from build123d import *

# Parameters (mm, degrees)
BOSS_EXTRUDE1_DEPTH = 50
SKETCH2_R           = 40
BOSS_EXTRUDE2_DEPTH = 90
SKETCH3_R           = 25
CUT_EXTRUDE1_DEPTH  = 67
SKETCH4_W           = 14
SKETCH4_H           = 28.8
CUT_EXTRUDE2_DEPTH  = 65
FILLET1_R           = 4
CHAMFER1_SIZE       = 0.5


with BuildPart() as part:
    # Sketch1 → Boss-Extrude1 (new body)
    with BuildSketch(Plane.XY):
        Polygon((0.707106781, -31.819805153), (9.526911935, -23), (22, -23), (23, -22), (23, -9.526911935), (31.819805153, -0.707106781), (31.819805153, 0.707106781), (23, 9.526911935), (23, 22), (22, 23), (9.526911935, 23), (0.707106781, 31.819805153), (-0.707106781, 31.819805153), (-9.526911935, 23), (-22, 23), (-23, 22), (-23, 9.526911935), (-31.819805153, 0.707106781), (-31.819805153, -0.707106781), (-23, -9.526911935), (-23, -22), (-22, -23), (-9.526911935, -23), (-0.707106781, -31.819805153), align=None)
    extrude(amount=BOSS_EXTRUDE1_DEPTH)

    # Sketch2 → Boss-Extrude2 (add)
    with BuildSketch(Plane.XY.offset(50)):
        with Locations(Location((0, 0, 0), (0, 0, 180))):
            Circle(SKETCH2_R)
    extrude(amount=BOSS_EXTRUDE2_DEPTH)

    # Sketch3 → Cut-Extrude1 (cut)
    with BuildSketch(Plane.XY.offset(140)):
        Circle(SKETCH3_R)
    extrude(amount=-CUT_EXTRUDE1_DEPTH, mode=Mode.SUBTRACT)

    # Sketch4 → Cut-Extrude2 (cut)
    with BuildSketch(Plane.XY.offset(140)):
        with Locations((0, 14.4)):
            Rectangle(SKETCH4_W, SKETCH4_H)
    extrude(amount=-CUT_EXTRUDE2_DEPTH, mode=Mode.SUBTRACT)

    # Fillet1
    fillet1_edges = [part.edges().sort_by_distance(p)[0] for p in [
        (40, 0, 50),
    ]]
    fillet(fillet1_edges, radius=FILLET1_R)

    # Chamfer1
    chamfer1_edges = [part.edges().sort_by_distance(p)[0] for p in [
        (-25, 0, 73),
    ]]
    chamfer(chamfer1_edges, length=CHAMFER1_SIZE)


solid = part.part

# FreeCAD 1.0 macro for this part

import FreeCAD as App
import Part
import Sketcher


def edges_at(feature, points):
    """Names of the edges that pass closest to the given points."""
    edges = feature.Shape.Edges
    near = lambda p: min(range(len(edges)), key=lambda i: edges[i].distToShape(Part.Vertex(*p))[0])
    return sorted({f"Edge{near(p) + 1}" for p in points})

doc = App.newDocument("Part")
body = doc.addObject("PartDesign::Body", "Body")

# Sketch on XY plane
sketch1 = doc.addObject("Sketcher::SketchObject", "Sketch")
body.addObject(sketch1)
sketch1.AttachmentSupport = (doc.XY_Plane, [""])
sketch1.MapMode = "FlatFace"
sketch1.addGeometry(Part.LineSegment(App.Vector(0.707107, -31.819805, 0), App.Vector(9.526912, -23, 0)), False)
sketch1.addGeometry(Part.LineSegment(App.Vector(9.526912, -23, 0), App.Vector(22, -23, 0)), False)
sketch1.addGeometry(Part.LineSegment(App.Vector(22, -23, 0), App.Vector(23, -22, 0)), False)
sketch1.addGeometry(Part.LineSegment(App.Vector(23, -22, 0), App.Vector(23, -9.526912, 0)), False)
sketch1.addGeometry(Part.LineSegment(App.Vector(23, -9.526912, 0), App.Vector(31.819805, -0.707107, 0)), False)
sketch1.addGeometry(Part.LineSegment(App.Vector(31.819805, -0.707107, 0), App.Vector(31.819805, 0.707107, 0)), False)
sketch1.addGeometry(Part.LineSegment(App.Vector(31.819805, 0.707107, 0), App.Vector(23, 9.526912, 0)), False)
sketch1.addGeometry(Part.LineSegment(App.Vector(23, 9.526912, 0), App.Vector(23, 22, 0)), False)
sketch1.addGeometry(Part.LineSegment(App.Vector(23, 22, 0), App.Vector(22, 23, 0)), False)
sketch1.addGeometry(Part.LineSegment(App.Vector(22, 23, 0), App.Vector(9.526912, 23, 0)), False)
sketch1.addGeometry(Part.LineSegment(App.Vector(9.526912, 23, 0), App.Vector(0.707107, 31.819805, 0)), False)
sketch1.addGeometry(Part.LineSegment(App.Vector(0.707107, 31.819805, 0), App.Vector(-0.707107, 31.819805, 0)), False)
sketch1.addGeometry(Part.LineSegment(App.Vector(-0.707107, 31.819805, 0), App.Vector(-9.526912, 23, 0)), False)
sketch1.addGeometry(Part.LineSegment(App.Vector(-9.526912, 23, 0), App.Vector(-22, 23, 0)), False)
sketch1.addGeometry(Part.LineSegment(App.Vector(-22, 23, 0), App.Vector(-23, 22, 0)), False)
sketch1.addGeometry(Part.LineSegment(App.Vector(-23, 22, 0), App.Vector(-23, 9.526912, 0)), False)
sketch1.addGeometry(Part.LineSegment(App.Vector(-23, 9.526912, 0), App.Vector(-31.819805, 0.707107, 0)), False)
sketch1.addGeometry(Part.LineSegment(App.Vector(-31.819805, 0.707107, 0), App.Vector(-31.819805, -0.707107, 0)), False)
sketch1.addGeometry(Part.LineSegment(App.Vector(-31.819805, -0.707107, 0), App.Vector(-23, -9.526912, 0)), False)
sketch1.addGeometry(Part.LineSegment(App.Vector(-23, -9.526912, 0), App.Vector(-23, -22, 0)), False)
sketch1.addGeometry(Part.LineSegment(App.Vector(-23, -22, 0), App.Vector(-22, -23, 0)), False)
sketch1.addGeometry(Part.LineSegment(App.Vector(-22, -23, 0), App.Vector(-9.526912, -23, 0)), False)
sketch1.addGeometry(Part.LineSegment(App.Vector(-9.526912, -23, 0), App.Vector(-0.707107, -31.819805, 0)), False)
sketch1.addGeometry(Part.LineSegment(App.Vector(-0.707107, -31.819805, 0), App.Vector(0.707107, -31.819805, 0)), False)
sketch1.addConstraint(Sketcher.Constraint("Coincident", 0, 2, 1, 1))
sketch1.addConstraint(Sketcher.Constraint("Coincident", 1, 2, 2, 1))
sketch1.addConstraint(Sketcher.Constraint("Coincident", 2, 2, 3, 1))
sketch1.addConstraint(Sketcher.Constraint("Coincident", 3, 2, 4, 1))
sketch1.addConstraint(Sketcher.Constraint("Coincident", 4, 2, 5, 1))
sketch1.addConstraint(Sketcher.Constraint("Coincident", 5, 2, 6, 1))
sketch1.addConstraint(Sketcher.Constraint("Coincident", 6, 2, 7, 1))
sketch1.addConstraint(Sketcher.Constraint("Coincident", 7, 2, 8, 1))
sketch1.addConstraint(Sketcher.Constraint("Coincident", 8, 2, 9, 1))
sketch1.addConstraint(Sketcher.Constraint("Coincident", 9, 2, 10, 1))
sketch1.addConstraint(Sketcher.Constraint("Coincident", 10, 2, 11, 1))
sketch1.addConstraint(Sketcher.Constraint("Coincident", 11, 2, 12, 1))
sketch1.addConstraint(Sketcher.Constraint("Coincident", 12, 2, 13, 1))
sketch1.addConstraint(Sketcher.Constraint("Coincident", 13, 2, 14, 1))
sketch1.addConstraint(Sketcher.Constraint("Coincident", 14, 2, 15, 1))
sketch1.addConstraint(Sketcher.Constraint("Coincident", 15, 2, 16, 1))
sketch1.addConstraint(Sketcher.Constraint("Coincident", 16, 2, 17, 1))
sketch1.addConstraint(Sketcher.Constraint("Coincident", 17, 2, 18, 1))
sketch1.addConstraint(Sketcher.Constraint("Coincident", 18, 2, 19, 1))
sketch1.addConstraint(Sketcher.Constraint("Coincident", 19, 2, 20, 1))
sketch1.addConstraint(Sketcher.Constraint("Coincident", 20, 2, 21, 1))
sketch1.addConstraint(Sketcher.Constraint("Coincident", 21, 2, 22, 1))
sketch1.addConstraint(Sketcher.Constraint("Coincident", 22, 2, 23, 1))
sketch1.addConstraint(Sketcher.Constraint("Coincident", 23, 2, 0, 1))
sketch1.addConstraint(Sketcher.Constraint("Horizontal", 1))
sketch1.addConstraint(Sketcher.Constraint("Vertical", 3))
sketch1.addConstraint(Sketcher.Constraint("Vertical", 5))
sketch1.addConstraint(Sketcher.Constraint("Vertical", 7))
sketch1.addConstraint(Sketcher.Constraint("Horizontal", 9))
sketch1.addConstraint(Sketcher.Constraint("Horizontal", 11))
sketch1.addConstraint(Sketcher.Constraint("Horizontal", 13))
sketch1.addConstraint(Sketcher.Constraint("Vertical", 15))
sketch1.addConstraint(Sketcher.Constraint("Vertical", 17))
sketch1.addConstraint(Sketcher.Constraint("Vertical", 19))
sketch1.addConstraint(Sketcher.Constraint("Horizontal", 21))
sketch1.addConstraint(Sketcher.Constraint("Horizontal", 23))
sketch1.addConstraint(Sketcher.Constraint("Symmetric", 0, 2, 12, 2, -1, 1))
sketch1.addConstraint(Sketcher.Constraint("Symmetric", 2, 2, 14, 2, -1, 1))
sketch1.addConstraint(Sketcher.Constraint("Symmetric", 4, 2, 16, 2, -1, 1))
sketch1.addConstraint(Sketcher.Constraint("Symmetric", 6, 2, 18, 2, -1, 1))
sketch1.addConstraint(Sketcher.Constraint("Symmetric", 8, 2, 20, 2, -1, 1))
sketch1.addConstraint(Sketcher.Constraint("Symmetric", 10, 2, 22, 2, -1, 1))
sketch1.addConstraint(Sketcher.Constraint("Symmetric", 9, 2, 12, 2, -2))
sketch1.addConstraint(Sketcher.Constraint("Symmetric", 7, 2, 14, 2, -2))
sketch1.addConstraint(Sketcher.Constraint("Parallel", 0, 2))
sketch1.addConstraint(Sketcher.Constraint("Parallel", 2, 4))
sketch1.addConstraint(Sketcher.Constraint("Perpendicular", 4, 6))
sketch1.addConstraint(Sketcher.Constraint("Parallel", 6, 8))
sketch1.addConstraint(Sketcher.Constraint("Parallel", 8, 10))
sketch1.addConstraint(Sketcher.Constraint("Perpendicular", 10, 12))
sketch1.addConstraint(Sketcher.Constraint("Parallel", 12, 14))
sketch1.addConstraint(Sketcher.Constraint("Parallel", 14, 16))
sketch1.addConstraint(Sketcher.Constraint("Perpendicular", 16, 18))
sketch1.addConstraint(Sketcher.Constraint("Parallel", 18, 20))
sketch1.addConstraint(Sketcher.Constraint("Parallel", 20, 22))
sketch1.addConstraint(Sketcher.Constraint("Horizontal", 6, 2, 15, 2))
sketch1.addConstraint(Sketcher.Constraint("Horizontal", 5, 2, 16, 2))
sketch1.addConstraint(Sketcher.Constraint("Equal", 21, 3))
sketch1.addConstraint(Sketcher.Constraint("Equal", 23, 5))
sketch1.addConstraint(Sketcher.Constraint("Equal", 0, 4))
sketch1.addConstraint(Sketcher.Constraint("DistanceY", 0, 2, -1, 1, 23.0))
sketch1.addConstraint(Sketcher.Constraint("DistanceX", -1, 1, 1, 2, 22.0))
sketch1.addConstraint(Sketcher.Constraint("DistanceX", 1, 1, 1, 2, 12.473088))
sketch1.addConstraint(Sketcher.Constraint("DistanceX", 10, 2, 5, 2, 31.112698))
pad1 = doc.addObject("PartDesign::Pad", "Pad")
body.addObject(pad1)
pad1.Profile = sketch1
pad1.Length = 50

# Sketch on XY plane
sketch2 = doc.addObject("Sketcher::SketchObject", "Sketch001")
body.addObject(sketch2)
sketch2.AttachmentSupport = (doc.XY_Plane, [""])
sketch2.MapMode = "FlatFace"
sketch2.AttachmentOffset = App.Placement(App.Vector(0, 0, 50), App.Rotation())
sketch2.addGeometry(Part.Circle(App.Vector(0, 0, 0), App.Vector(0, 0, 1), 40), False)
sketch2.addConstraint(Sketcher.Constraint("Coincident", 0, 3, -1, 1))
sketch2.addConstraint(Sketcher.Constraint("Diameter", 0, 80.0))
pad2 = doc.addObject("PartDesign::Pad", "Pad001")
body.addObject(pad2)
pad2.Profile = sketch2
pad2.Length = 90

# Sketch on XY plane
sketch3 = doc.addObject("Sketcher::SketchObject", "Sketch002")
body.addObject(sketch3)
sketch3.AttachmentSupport = (doc.XY_Plane, [""])
sketch3.MapMode = "FlatFace"
sketch3.AttachmentOffset = App.Placement(App.Vector(0, 0, 140), App.Rotation())
sketch3.addGeometry(Part.Circle(App.Vector(0, 0, 0), App.Vector(0, 0, 1), 25), False)
sketch3.addConstraint(Sketcher.Constraint("Coincident", 0, 3, -1, 1))
sketch3.addConstraint(Sketcher.Constraint("Diameter", 0, 50.0))
pocket1 = doc.addObject("PartDesign::Pocket", "Pocket")
body.addObject(pocket1)
pocket1.Profile = sketch3
pocket1.Length = 67

# Sketch on XY plane
sketch4 = doc.addObject("Sketcher::SketchObject", "Sketch003")
body.addObject(sketch4)
sketch4.AttachmentSupport = (doc.XY_Plane, [""])
sketch4.MapMode = "FlatFace"
sketch4.AttachmentOffset = App.Placement(App.Vector(0, 0, 140), App.Rotation())
sketch4.addGeometry(Part.LineSegment(App.Vector(-7, 28.8, 0), App.Vector(-7, 0, 0)), False)
sketch4.addGeometry(Part.LineSegment(App.Vector(-7, 0, 0), App.Vector(7, 0, 0)), False)
sketch4.addGeometry(Part.LineSegment(App.Vector(7, 0, 0), App.Vector(7, 28.8, 0)), False)
sketch4.addGeometry(Part.LineSegment(App.Vector(7, 28.8, 0), App.Vector(-7, 28.8, 0)), False)
sketch4.addConstraint(Sketcher.Constraint("Coincident", 0, 2, 1, 1))
sketch4.addConstraint(Sketcher.Constraint("Coincident", 1, 2, 2, 1))
sketch4.addConstraint(Sketcher.Constraint("Coincident", 2, 2, 3, 1))
sketch4.addConstraint(Sketcher.Constraint("Coincident", 3, 2, 0, 1))
sketch4.addConstraint(Sketcher.Constraint("Vertical", 0))
sketch4.addConstraint(Sketcher.Constraint("Horizontal", 1))
sketch4.addConstraint(Sketcher.Constraint("Vertical", 2))
sketch4.addConstraint(Sketcher.Constraint("Horizontal", 3))
sketch4.addConstraint(Sketcher.Constraint("Symmetric", 0, 2, 1, 2, -1, 1))
sketch4.addConstraint(Sketcher.Constraint("DistanceX", 1, 1, 1, 2, 14.0))
sketch4.addConstraint(Sketcher.Constraint("DistanceY", 0, 2, 0, 1, 28.8))
pocket2 = doc.addObject("PartDesign::Pocket", "Pocket001")
body.addObject(pocket2)
pocket2.Profile = sketch4
pocket2.Length = 65
doc.recompute()

fillet = doc.addObject("PartDesign::Fillet", "Fillet")
body.addObject(fillet)
fillet.Base = (pocket2, edges_at(pocket2, [(40, 0, 50)]))
fillet.Radius = 4
doc.recompute()

chamfer = doc.addObject("PartDesign::Chamfer", "Chamfer")
body.addObject(chamfer)
chamfer.Base = (fillet, edges_at(fillet, [(-25, 0, 73)]))
chamfer.Size = 0.5

doc.recompute()
